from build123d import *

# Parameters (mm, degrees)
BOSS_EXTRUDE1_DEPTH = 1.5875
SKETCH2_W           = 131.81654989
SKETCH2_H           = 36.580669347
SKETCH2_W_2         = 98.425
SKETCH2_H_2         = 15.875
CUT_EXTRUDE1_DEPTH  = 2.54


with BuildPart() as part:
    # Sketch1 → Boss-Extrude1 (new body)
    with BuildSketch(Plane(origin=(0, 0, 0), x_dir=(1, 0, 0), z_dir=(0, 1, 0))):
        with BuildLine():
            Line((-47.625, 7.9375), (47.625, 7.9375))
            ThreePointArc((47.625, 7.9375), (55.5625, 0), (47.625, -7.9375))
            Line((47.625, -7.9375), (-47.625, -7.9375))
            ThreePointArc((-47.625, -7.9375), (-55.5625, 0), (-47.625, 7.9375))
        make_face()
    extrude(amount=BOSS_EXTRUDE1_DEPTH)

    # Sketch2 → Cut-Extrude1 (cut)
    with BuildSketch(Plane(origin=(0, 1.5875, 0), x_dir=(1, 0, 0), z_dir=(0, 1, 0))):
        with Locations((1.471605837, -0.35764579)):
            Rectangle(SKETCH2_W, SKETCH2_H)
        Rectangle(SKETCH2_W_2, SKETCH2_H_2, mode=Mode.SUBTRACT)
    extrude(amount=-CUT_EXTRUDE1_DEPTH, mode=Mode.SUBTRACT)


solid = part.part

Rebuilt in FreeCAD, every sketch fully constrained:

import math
import FreeCAD as App
import Part
import Sketcher
from FreeCAD import Vector
Q = App.Units.Quantity

doc = App.newDocument("Part")
params = doc.addObject("Spreadsheet::Sheet", "Params")
for row, (alias, value) in enumerate([
    ("sketch1_radius", "0.3125 in"),
    ("sketch1_width", "3.75 in"),
    ("pad1_length", "0.0625 in"),
    ("sketch2_width", "3.875 in"),
    ("sketch2_height", "0.625 in"),
    ("pocket1_length", "0.1 in"),
], start=1):
    params.set(f"A{row}", alias)
    params.set(f"B{row}", "=" + value)
    params.setAlias(f"B{row}", alias)

body = doc.addObject("PartDesign::Body", "Body")

sketch1 = body.newObject("Sketcher::SketchObject", "Sketch")
sketch1.AttachmentSupport = (doc.getObject("XZ_Plane"), [""])
sketch1.MapMode = "FlatFace"
sketch1.addGeometry([
    Part.LineSegment(Vector(48, -8, 0), Vector(-48, -8, 0)),
    Part.ArcOfCircle(Part.Circle(Vector(-48, 0, 0), Vector(0, 0, 1), 8), math.radians(90), math.radians(270)),
    Part.LineSegment(Vector(-48, 8, 0), Vector(48, 8, 0)),
    Part.ArcOfCircle(Part.Circle(Vector(48, 0, 0), Vector(0, 0, 1), 8), math.radians(-90), math.radians(90)),
], False)
sketch1.addConstraint([
    Sketcher.Constraint("Tangent", 0, 2, 1, 2),
    Sketcher.Constraint("Tangent", 1, 1, 2, 1),
    Sketcher.Constraint("Tangent", 2, 2, 3, 2),
    Sketcher.Constraint("Tangent", 3, 1, 0, 1),
    Sketcher.Constraint("Horizontal", 0),
    Sketcher.Constraint("Horizontal", 2),
    Sketcher.Constraint("Symmetric", 1, 3, 3, 3, -1, 1),
    Sketcher.Constraint("Radius", 1, Q("0.3125 in")),
    Sketcher.Constraint("DistanceX", 0, 2, 0, 1, Q("3.75 in")),
])
sketch1.setExpression("Constraints[7]", "Params.sketch1_radius")
sketch1.setExpression("Constraints[8]", "Params.sketch1_width")
pad1 = body.newObject("PartDesign::Pad", "Pad")
pad1.Profile = sketch1
pad1.setExpression("Length", "Params.pad1_length")
pad1.Reversed = True

sketch2 = body.newObject("Sketcher::SketchObject", "Sketch001")
sketch2.AttachmentSupport = (doc.getObject("XZ_Plane"), [""])
sketch2.MapMode = "FlatFace"
sketch2.AttachmentOffset = App.Placement(Vector(0, 0, -0.0625 * 25.4), App.Rotation())
sketch2.addGeometry([
    Part.LineSegment(Vector(-64, -18, 0), Vector(-64, 19, 0)),
    Part.LineSegment(Vector(-64, 19, 0), Vector(67, 19, 0)),
    Part.LineSegment(Vector(67, 19, 0), Vector(67, -18, 0)),
    Part.LineSegment(Vector(67, -18, 0), Vector(-64, -18, 0)),
    Part.LineSegment(Vector(49, 8, 0), Vector(-49, 8, 0)),
    Part.LineSegment(Vector(-49, 8, 0), Vector(-49, -8, 0)),
    Part.LineSegment(Vector(-49, -8, 0), Vector(49, -8, 0)),
    Part.LineSegment(Vector(49, -8, 0), Vector(49, 8, 0)),
], False)
sketch2.addConstraint([
    Sketcher.Constraint("Coincident", 0, 2, 1, 1),
    Sketcher.Constraint("Coincident", 1, 2, 2, 1),
    Sketcher.Constraint("Coincident", 2, 2, 3, 1),
    Sketcher.Constraint("Coincident", 3, 2, 0, 1),
    Sketcher.Constraint("Coincident", 4, 2, 5, 1),
    Sketcher.Constraint("Coincident", 5, 2, 6, 1),
    Sketcher.Constraint("Coincident", 6, 2, 7, 1),
    Sketcher.Constraint("Coincident", 7, 2, 4, 1),
    Sketcher.Constraint("Vertical", 0),
    Sketcher.Constraint("Horizontal", 1),
    Sketcher.Constraint("Vertical", 2),
    Sketcher.Constraint("Horizontal", 3),
    Sketcher.Constraint("Horizontal", 4),
    Sketcher.Constraint("Vertical", 5),
    Sketcher.Constraint("Horizontal", 6),
    Sketcher.Constraint("Vertical", 7),
    Sketcher.Constraint("Symmetric", 4, 2, 6, 2, -1, 1),
    Sketcher.Constraint("DistanceX", 4, 2, 4, 1, Q("3.875 in")),
    Sketcher.Constraint("DistanceY", 5, 2, 5, 1, Q("0.625 in")),
    Sketcher.Constraint("DistanceX", 1, 1, 1, 2, Q("131.81655 mm")),
    Sketcher.Constraint("DistanceY", 0, 1, 0, 2, Q("36.580669 mm")),
    Sketcher.Constraint("DistanceX", 0, 2, -1, 1, Q("64.436669 mm")),
    Sketcher.Constraint("DistanceY", -1, 1, 0, 2, Q("18.64798 mm")),
])
sketch2.setExpression("Constraints[17]", "Params.sketch2_width")
sketch2.setExpression("Constraints[18]", "Params.sketch2_height")
pocket1 = body.newObject("PartDesign::Pocket", "Pocket")
pocket1.Profile = sketch2
pocket1.setExpression("Length", "Params.pocket1_length")
pocket1.Reversed = True

doc.recompute()
